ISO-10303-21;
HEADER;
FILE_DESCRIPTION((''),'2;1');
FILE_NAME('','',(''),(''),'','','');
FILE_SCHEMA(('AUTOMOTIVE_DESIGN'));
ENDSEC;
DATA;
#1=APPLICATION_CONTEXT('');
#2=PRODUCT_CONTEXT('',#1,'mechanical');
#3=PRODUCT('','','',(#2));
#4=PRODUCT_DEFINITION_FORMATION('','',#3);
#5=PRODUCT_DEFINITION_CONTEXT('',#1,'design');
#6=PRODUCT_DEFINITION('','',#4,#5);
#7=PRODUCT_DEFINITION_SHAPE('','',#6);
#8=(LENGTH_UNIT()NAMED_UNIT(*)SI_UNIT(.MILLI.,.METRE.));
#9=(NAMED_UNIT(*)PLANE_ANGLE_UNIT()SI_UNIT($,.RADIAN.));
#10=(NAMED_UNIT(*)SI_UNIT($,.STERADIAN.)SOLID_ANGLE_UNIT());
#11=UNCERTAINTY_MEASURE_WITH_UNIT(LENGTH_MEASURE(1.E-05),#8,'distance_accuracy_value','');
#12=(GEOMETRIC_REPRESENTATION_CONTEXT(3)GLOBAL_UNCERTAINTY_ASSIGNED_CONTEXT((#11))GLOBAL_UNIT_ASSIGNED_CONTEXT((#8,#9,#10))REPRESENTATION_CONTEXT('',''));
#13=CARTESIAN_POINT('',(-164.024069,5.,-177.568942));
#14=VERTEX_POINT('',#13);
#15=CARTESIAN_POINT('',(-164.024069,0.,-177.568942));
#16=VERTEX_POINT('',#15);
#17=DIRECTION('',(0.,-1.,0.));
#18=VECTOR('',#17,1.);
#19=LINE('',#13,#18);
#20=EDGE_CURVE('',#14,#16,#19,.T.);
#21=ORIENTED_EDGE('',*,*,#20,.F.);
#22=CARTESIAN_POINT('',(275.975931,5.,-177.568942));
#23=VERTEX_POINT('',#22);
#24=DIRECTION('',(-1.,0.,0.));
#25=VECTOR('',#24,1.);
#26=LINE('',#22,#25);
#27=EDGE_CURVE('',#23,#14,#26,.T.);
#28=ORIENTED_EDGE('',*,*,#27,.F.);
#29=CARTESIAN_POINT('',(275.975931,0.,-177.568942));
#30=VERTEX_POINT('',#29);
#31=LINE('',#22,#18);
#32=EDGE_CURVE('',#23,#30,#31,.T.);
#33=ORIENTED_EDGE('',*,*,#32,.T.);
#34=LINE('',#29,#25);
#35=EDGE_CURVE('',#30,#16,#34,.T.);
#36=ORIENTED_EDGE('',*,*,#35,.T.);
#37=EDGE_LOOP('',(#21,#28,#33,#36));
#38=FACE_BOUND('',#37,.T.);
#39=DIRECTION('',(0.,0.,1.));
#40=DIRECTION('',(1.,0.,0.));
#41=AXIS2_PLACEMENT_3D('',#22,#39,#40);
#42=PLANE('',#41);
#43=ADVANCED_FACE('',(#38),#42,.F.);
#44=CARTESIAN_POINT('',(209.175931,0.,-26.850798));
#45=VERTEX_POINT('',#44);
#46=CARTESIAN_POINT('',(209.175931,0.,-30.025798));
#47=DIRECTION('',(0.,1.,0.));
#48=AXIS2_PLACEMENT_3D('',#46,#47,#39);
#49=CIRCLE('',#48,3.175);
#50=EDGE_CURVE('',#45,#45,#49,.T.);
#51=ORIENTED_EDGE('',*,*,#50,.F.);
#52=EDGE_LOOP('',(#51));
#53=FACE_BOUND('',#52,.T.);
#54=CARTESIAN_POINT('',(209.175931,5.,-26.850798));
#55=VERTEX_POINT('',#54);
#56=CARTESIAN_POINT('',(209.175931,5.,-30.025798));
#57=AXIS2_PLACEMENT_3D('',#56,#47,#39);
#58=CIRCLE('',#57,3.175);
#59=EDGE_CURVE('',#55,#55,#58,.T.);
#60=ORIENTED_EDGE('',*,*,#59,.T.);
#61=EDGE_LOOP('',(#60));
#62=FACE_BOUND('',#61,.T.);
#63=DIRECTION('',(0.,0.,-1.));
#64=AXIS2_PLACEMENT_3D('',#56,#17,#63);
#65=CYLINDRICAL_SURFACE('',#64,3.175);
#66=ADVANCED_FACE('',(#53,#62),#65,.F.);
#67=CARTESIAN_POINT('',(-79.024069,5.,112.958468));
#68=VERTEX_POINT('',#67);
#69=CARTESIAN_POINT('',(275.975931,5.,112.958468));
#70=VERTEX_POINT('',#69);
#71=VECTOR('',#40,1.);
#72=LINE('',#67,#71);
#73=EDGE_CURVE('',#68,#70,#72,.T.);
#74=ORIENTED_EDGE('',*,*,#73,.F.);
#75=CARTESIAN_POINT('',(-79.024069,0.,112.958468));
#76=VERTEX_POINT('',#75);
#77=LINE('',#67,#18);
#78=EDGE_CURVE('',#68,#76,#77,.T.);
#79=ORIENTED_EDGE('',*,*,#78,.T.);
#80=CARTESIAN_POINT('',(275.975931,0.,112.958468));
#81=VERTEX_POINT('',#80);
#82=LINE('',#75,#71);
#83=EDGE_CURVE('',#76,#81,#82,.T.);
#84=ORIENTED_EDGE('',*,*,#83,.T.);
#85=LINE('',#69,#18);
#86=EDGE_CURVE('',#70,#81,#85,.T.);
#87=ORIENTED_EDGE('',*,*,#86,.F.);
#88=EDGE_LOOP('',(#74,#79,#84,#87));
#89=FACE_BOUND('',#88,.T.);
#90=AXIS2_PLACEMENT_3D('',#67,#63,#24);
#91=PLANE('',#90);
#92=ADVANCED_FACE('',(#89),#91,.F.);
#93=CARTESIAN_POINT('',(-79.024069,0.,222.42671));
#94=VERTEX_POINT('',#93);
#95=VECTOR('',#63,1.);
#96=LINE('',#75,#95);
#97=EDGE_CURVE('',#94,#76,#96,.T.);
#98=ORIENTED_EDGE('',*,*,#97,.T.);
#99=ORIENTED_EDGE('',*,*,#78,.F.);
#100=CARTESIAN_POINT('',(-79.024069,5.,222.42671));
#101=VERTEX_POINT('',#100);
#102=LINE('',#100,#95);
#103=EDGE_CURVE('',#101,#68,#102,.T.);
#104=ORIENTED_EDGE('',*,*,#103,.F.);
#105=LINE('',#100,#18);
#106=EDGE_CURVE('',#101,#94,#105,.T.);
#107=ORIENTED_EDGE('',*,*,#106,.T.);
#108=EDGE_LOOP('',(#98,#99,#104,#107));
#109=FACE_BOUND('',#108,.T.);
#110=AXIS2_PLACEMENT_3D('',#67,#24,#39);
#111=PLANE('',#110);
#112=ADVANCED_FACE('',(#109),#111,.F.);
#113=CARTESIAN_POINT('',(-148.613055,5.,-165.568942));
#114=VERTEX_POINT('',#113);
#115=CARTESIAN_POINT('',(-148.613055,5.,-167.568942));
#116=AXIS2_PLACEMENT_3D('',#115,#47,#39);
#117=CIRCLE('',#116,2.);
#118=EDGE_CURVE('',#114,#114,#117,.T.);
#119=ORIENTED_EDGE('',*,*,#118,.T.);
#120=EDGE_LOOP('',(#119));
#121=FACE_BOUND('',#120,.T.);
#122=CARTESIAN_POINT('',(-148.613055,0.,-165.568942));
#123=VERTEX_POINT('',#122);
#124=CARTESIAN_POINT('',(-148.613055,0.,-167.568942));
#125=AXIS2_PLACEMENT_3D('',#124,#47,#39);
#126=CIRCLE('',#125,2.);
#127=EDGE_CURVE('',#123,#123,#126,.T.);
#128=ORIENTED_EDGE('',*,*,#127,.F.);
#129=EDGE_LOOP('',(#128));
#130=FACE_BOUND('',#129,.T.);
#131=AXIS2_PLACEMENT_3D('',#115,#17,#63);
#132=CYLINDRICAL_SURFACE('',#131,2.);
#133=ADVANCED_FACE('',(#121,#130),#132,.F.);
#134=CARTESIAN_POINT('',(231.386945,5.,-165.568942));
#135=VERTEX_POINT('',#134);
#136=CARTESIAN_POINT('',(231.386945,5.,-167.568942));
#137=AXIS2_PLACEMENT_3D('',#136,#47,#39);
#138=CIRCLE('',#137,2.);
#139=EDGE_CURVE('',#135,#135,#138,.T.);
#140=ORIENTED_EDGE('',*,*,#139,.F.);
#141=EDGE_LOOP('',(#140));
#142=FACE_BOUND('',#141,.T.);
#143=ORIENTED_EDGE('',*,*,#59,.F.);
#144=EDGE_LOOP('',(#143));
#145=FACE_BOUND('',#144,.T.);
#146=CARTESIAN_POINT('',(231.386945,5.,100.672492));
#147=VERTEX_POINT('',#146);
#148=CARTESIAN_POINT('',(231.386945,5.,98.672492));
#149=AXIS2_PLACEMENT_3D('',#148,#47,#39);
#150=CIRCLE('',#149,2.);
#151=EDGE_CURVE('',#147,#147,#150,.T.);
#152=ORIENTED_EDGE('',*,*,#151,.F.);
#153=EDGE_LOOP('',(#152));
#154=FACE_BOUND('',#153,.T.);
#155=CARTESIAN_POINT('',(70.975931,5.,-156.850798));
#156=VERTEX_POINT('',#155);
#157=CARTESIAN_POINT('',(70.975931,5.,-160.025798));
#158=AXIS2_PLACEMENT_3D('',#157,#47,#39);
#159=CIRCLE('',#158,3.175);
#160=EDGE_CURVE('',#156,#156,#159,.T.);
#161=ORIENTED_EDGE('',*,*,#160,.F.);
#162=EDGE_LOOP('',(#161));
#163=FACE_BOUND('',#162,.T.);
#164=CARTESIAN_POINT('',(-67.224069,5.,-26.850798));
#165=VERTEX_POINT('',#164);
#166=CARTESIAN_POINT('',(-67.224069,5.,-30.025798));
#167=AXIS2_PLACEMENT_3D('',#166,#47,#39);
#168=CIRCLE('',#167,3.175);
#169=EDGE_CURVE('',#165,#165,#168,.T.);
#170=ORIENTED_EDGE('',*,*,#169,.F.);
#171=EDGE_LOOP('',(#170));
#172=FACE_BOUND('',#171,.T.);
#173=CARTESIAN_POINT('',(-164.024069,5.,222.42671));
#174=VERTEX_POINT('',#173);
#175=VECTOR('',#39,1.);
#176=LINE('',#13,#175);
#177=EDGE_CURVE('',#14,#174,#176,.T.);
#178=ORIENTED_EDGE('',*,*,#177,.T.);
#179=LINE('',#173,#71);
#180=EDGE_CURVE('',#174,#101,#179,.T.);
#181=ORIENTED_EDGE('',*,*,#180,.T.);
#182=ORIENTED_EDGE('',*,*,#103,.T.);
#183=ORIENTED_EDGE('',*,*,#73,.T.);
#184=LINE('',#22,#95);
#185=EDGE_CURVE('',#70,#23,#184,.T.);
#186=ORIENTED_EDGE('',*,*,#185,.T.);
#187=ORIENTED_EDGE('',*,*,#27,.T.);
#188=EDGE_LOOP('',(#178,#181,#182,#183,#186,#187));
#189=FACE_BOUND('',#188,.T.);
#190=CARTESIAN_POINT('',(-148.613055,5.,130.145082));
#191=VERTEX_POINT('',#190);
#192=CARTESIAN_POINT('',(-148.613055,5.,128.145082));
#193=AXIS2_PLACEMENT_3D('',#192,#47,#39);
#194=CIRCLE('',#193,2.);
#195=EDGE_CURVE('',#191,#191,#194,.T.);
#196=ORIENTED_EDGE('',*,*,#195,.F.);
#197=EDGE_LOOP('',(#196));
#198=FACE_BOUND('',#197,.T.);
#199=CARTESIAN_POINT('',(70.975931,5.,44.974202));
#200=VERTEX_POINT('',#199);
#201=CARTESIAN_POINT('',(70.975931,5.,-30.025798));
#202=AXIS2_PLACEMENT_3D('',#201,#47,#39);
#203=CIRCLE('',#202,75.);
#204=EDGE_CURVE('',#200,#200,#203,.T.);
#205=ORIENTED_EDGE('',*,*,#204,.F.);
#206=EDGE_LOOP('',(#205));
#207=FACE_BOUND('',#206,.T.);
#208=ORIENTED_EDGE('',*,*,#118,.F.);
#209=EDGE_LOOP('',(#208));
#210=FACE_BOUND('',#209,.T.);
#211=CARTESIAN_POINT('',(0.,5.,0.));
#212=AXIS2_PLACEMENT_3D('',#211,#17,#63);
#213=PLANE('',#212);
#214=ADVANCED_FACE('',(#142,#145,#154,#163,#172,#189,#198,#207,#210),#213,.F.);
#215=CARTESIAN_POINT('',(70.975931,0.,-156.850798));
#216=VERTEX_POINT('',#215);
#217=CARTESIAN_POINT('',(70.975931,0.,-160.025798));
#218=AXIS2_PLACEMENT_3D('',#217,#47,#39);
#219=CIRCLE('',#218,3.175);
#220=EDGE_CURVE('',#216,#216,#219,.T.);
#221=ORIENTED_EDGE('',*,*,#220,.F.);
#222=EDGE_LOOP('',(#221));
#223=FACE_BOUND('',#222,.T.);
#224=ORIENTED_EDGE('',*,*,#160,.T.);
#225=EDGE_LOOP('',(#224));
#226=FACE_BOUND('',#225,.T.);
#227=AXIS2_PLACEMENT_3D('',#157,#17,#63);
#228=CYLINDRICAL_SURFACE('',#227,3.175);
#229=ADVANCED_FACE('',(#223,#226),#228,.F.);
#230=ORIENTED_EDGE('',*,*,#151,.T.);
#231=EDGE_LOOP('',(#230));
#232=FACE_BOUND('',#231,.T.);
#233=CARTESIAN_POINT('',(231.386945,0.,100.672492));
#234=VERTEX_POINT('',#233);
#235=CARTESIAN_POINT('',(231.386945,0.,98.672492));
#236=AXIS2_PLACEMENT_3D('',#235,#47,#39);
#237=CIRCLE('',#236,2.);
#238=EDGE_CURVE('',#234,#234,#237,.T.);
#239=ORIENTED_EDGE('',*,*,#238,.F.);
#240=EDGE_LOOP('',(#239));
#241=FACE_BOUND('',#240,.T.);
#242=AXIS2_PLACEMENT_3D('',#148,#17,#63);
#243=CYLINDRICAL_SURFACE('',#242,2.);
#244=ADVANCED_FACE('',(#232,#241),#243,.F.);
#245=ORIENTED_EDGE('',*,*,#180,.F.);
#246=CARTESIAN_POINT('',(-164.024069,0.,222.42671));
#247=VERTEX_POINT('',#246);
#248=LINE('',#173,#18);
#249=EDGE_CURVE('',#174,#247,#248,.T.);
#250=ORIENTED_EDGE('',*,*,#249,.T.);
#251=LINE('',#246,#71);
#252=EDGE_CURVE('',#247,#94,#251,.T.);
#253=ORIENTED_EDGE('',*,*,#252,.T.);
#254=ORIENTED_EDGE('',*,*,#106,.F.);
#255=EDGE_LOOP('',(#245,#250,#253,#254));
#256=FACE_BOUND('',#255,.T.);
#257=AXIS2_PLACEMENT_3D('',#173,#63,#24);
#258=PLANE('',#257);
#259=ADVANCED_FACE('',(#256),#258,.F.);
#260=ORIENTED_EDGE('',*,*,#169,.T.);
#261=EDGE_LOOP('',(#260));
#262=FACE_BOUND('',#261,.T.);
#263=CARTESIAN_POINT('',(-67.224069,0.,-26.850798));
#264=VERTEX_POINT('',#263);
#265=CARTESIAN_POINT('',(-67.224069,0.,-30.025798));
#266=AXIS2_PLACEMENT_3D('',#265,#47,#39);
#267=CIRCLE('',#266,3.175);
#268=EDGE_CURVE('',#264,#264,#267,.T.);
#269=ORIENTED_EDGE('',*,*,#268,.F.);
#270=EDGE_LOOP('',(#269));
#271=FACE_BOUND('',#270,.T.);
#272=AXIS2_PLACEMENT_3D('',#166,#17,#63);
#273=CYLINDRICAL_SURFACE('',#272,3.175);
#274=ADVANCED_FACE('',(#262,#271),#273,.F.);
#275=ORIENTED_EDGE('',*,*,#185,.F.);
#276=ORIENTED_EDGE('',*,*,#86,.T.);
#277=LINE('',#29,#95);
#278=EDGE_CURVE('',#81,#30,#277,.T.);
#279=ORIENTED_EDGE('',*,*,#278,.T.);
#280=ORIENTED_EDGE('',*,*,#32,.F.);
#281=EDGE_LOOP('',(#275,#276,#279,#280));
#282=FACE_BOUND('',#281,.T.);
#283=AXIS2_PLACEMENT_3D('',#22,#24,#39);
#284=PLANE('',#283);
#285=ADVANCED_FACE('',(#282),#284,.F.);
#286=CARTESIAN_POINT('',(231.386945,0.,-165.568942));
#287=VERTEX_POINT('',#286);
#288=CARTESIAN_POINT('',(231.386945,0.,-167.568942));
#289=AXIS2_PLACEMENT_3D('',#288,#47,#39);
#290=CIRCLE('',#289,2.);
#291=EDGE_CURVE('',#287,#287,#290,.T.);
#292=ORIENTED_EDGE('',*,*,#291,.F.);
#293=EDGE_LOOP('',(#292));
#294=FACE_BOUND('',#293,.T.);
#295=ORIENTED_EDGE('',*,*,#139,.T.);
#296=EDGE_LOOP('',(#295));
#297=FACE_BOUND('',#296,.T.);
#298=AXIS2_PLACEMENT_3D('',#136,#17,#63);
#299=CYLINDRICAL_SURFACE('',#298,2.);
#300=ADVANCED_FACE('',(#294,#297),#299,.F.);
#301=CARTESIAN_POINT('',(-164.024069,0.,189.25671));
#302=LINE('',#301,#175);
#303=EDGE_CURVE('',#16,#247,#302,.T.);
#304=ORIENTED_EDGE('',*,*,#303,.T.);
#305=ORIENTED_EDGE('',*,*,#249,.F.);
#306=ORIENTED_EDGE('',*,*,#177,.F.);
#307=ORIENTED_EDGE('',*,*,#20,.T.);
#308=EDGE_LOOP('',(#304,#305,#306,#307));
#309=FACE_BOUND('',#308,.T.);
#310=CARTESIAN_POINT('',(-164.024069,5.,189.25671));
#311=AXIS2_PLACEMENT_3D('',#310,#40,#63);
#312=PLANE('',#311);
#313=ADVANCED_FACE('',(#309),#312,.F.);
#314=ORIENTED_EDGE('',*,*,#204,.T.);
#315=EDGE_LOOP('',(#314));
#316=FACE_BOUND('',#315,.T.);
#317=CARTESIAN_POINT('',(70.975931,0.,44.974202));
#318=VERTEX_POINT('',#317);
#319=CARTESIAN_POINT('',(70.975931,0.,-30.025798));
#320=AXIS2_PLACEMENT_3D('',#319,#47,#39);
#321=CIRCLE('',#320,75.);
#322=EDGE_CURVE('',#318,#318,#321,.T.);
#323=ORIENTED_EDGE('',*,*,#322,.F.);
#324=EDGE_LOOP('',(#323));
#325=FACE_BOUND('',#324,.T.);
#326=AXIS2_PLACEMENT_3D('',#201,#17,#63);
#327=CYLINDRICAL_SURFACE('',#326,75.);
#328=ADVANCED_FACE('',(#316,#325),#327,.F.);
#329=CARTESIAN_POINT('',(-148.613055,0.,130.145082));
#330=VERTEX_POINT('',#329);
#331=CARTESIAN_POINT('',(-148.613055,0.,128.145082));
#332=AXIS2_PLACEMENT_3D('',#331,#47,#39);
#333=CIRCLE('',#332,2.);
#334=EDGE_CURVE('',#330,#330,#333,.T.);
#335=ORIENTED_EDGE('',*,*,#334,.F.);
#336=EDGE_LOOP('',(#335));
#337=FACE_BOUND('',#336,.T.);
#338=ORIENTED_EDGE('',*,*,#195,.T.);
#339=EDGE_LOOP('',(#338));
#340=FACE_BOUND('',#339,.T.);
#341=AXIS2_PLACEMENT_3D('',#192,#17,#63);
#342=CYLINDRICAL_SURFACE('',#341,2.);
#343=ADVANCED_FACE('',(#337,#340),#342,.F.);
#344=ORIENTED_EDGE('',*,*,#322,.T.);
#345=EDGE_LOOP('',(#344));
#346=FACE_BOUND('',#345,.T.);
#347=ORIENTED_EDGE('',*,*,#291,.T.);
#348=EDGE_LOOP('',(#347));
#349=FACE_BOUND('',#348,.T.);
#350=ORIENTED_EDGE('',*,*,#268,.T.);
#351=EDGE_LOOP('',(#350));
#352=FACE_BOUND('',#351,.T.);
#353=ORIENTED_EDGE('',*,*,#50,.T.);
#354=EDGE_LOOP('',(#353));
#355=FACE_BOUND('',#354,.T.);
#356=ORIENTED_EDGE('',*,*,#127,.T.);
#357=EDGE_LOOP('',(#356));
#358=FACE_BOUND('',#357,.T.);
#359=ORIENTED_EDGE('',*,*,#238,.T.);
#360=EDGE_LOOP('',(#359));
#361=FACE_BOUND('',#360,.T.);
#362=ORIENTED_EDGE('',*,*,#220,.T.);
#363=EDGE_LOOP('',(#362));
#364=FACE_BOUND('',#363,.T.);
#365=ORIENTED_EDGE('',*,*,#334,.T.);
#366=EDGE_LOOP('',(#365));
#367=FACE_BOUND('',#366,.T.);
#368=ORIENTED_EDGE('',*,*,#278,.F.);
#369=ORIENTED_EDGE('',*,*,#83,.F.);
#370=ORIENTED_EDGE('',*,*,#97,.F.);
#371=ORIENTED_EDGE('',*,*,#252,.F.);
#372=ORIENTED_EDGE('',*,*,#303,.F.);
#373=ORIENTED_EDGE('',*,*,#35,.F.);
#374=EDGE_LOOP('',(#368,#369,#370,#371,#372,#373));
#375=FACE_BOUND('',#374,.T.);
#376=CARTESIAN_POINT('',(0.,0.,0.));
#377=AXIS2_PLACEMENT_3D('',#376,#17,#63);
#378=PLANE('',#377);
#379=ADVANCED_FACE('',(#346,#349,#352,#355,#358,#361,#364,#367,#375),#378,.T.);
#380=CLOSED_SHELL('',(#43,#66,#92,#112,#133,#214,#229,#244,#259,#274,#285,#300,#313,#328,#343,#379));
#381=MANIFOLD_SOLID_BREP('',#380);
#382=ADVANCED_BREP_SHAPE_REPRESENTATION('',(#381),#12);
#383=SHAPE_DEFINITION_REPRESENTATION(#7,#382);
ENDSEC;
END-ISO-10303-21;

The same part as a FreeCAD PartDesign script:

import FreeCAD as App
import Part
import Sketcher
Q = App.Units.Quantity


def add_polygon(sketch, points):
    """Adds a closed chain of lines whose ends are joined by coincident constraints."""
    first, n = sketch.GeometryCount, len(points)
    for a, b in zip(points, points[1:] + points[:1]):
        sketch.addGeometry(Part.LineSegment(App.Vector(*a, 0), App.Vector(*b, 0)), False)
    for i in range(n):
        sketch.addConstraint(Sketcher.Constraint("Coincident", first + i, 2, first + (i + 1) % n, 1))

doc = App.newDocument("Part")
body = doc.addObject("PartDesign::Body", "Body")

# Sketch on XZ plane
sketch1 = body.newObject("Sketcher::SketchObject", "Sketch")
sketch1.AttachmentSupport = (doc.getObject("XZ_Plane"), [""])
sketch1.MapMode = "FlatFace"
add_polygon(sketch1, [(-164, -177.6), (-164, 222.4), (-79, 222.4), (-79, 113), (276, 113), (276, -177.6)])  # lines 0-5
sketch1.addGeometry(Part.Circle(App.Vector(-148.6, 128.1, 0), App.Vector(0, 0, 1), 2), False)  # 6
sketch1.addGeometry(Part.Circle(App.Vector(231.4, 98.7, 0), App.Vector(0, 0, 1), 2), False)  # 7
sketch1.addGeometry(Part.Circle(App.Vector(-67.2, -30, 0), App.Vector(0, 0, 1), 3.2), False)  # 8
sketch1.addGeometry(Part.Circle(App.Vector(-148.6, -167.6, 0), App.Vector(0, 0, 1), 2), False)  # 9
sketch1.addGeometry(Part.Circle(App.Vector(71, -30, 0), App.Vector(0, 0, 1), 75), False)  # 10
sketch1.addGeometry(Part.Circle(App.Vector(209.2, -30, 0), App.Vector(0, 0, 1), 3.2), False)  # 11
sketch1.addGeometry(Part.Circle(App.Vector(71, -160, 0), App.Vector(0, 0, 1), 3.2), False)  # 12
sketch1.addGeometry(Part.Circle(App.Vector(231.4, -167.6, 0), App.Vector(0, 0, 1), 2), False)  # 13
sketch1.addConstraint(Sketcher.Constraint("Vertical", 0))
sketch1.addConstraint(Sketcher.Constraint("Horizontal", 1))
sketch1.addConstraint(Sketcher.Constraint("Vertical", 2))
sketch1.addConstraint(Sketcher.Constraint("Horizontal", 3))
sketch1.addConstraint(Sketcher.Constraint("Vertical", 4))
sketch1.addConstraint(Sketcher.Constraint("Horizontal", 5))
sketch1.addConstraint(Sketcher.Constraint("Equal", 6, 7))
sketch1.addConstraint(Sketcher.Constraint("Equal", 7, 9))
sketch1.addConstraint(Sketcher.Constraint("Equal", 8, 11))
sketch1.addConstraint(Sketcher.Constraint("Equal", 11, 12))
sketch1.addConstraint(Sketcher.Constraint("Equal", 9, 13))
sketch1.addConstraint(Sketcher.Constraint("Horizontal", 8, 3, 10, 3))
sketch1.addConstraint(Sketcher.Constraint("Horizontal", 10, 3, 11, 3))
sketch1.addConstraint(Sketcher.Constraint("Horizontal", 9, 3, 13, 3))
sketch1.addConstraint(Sketcher.Constraint("Vertical", 6, 3, 9, 3))
sketch1.addConstraint(Sketcher.Constraint("Vertical", 10, 3, 12, 3))
sketch1.addConstraint(Sketcher.Constraint("Vertical", 7, 3, 13, 3))
sketch1.addConstraint(Sketcher.Constraint("Diameter", 6, Q("4 mm")))
sketch1.addConstraint(Sketcher.Constraint("Diameter", 10, Q("150 mm")))
sketch1.addConstraint(Sketcher.Constraint("Diameter", 8, Q("6.35 mm")))
sketch1.addConstraint(Sketcher.Constraint("DistanceX", 1, 1, 1, 2, Q("85 mm")))
sketch1.addConstraint(Sketcher.Constraint("DistanceX", 3, 1, 3, 2, Q("355 mm")))
sketch1.addConstraint(Sketcher.Constraint("DistanceX", 6, 3, 7, 3, Q("380 mm")))
sketch1.addConstraint(Sketcher.Constraint("DistanceY", 12, 3, 10, 3, Q("130 mm")))
sketch1.addConstraint(Sketcher.Constraint("DistanceX", 0, 2, 10, 3, Q("235 mm")))
sketch1.addConstraint(Sketcher.Constraint("DistanceY", 4, 2, 13, 3, Q("10 mm")))
sketch1.addConstraint(Sketcher.Constraint("DistanceX", 8, 3, 10, 3, Q("138.2 mm")))
sketch1.addConstraint(Sketcher.Constraint("DistanceX", 10, 3, 11, 3, Q("138.2 mm")))
sketch1.addConstraint(Sketcher.Constraint("DistanceY", 2, 2, 2, 1, Q("109.468242 mm")))
sketch1.addConstraint(Sketcher.Constraint("DistanceY", 4, 2, 4, 1, Q("290.52741 mm")))
sketch1.addConstraint(Sketcher.Constraint("DistanceY", 8, 3, -1, 1, Q("30.025798 mm")))
sketch1.addConstraint(Sketcher.Constraint("DistanceY", -1, 1, 6, 3, Q("128.145082 mm")))
sketch1.addConstraint(Sketcher.Constraint("DistanceX", 8, 3, -1, 1, Q("67.224069 mm")))
sketch1.addConstraint(Sketcher.Constraint("DistanceY", -1, 1, 0, 2, Q("222.42671 mm")))
sketch1.addConstraint(Sketcher.Constraint("DistanceY", 7, 3, 6, 3, Q("29.47259 mm")))
sketch1.addConstraint(Sketcher.Constraint("DistanceX", 6, 3, -1, 1, Q("148.613055 mm")))
pad1 = body.newObject("PartDesign::Pad", "Pad")
pad1.Profile = sketch1
pad1.Length = 5
pad1.Reversed = True

doc.recompute()
